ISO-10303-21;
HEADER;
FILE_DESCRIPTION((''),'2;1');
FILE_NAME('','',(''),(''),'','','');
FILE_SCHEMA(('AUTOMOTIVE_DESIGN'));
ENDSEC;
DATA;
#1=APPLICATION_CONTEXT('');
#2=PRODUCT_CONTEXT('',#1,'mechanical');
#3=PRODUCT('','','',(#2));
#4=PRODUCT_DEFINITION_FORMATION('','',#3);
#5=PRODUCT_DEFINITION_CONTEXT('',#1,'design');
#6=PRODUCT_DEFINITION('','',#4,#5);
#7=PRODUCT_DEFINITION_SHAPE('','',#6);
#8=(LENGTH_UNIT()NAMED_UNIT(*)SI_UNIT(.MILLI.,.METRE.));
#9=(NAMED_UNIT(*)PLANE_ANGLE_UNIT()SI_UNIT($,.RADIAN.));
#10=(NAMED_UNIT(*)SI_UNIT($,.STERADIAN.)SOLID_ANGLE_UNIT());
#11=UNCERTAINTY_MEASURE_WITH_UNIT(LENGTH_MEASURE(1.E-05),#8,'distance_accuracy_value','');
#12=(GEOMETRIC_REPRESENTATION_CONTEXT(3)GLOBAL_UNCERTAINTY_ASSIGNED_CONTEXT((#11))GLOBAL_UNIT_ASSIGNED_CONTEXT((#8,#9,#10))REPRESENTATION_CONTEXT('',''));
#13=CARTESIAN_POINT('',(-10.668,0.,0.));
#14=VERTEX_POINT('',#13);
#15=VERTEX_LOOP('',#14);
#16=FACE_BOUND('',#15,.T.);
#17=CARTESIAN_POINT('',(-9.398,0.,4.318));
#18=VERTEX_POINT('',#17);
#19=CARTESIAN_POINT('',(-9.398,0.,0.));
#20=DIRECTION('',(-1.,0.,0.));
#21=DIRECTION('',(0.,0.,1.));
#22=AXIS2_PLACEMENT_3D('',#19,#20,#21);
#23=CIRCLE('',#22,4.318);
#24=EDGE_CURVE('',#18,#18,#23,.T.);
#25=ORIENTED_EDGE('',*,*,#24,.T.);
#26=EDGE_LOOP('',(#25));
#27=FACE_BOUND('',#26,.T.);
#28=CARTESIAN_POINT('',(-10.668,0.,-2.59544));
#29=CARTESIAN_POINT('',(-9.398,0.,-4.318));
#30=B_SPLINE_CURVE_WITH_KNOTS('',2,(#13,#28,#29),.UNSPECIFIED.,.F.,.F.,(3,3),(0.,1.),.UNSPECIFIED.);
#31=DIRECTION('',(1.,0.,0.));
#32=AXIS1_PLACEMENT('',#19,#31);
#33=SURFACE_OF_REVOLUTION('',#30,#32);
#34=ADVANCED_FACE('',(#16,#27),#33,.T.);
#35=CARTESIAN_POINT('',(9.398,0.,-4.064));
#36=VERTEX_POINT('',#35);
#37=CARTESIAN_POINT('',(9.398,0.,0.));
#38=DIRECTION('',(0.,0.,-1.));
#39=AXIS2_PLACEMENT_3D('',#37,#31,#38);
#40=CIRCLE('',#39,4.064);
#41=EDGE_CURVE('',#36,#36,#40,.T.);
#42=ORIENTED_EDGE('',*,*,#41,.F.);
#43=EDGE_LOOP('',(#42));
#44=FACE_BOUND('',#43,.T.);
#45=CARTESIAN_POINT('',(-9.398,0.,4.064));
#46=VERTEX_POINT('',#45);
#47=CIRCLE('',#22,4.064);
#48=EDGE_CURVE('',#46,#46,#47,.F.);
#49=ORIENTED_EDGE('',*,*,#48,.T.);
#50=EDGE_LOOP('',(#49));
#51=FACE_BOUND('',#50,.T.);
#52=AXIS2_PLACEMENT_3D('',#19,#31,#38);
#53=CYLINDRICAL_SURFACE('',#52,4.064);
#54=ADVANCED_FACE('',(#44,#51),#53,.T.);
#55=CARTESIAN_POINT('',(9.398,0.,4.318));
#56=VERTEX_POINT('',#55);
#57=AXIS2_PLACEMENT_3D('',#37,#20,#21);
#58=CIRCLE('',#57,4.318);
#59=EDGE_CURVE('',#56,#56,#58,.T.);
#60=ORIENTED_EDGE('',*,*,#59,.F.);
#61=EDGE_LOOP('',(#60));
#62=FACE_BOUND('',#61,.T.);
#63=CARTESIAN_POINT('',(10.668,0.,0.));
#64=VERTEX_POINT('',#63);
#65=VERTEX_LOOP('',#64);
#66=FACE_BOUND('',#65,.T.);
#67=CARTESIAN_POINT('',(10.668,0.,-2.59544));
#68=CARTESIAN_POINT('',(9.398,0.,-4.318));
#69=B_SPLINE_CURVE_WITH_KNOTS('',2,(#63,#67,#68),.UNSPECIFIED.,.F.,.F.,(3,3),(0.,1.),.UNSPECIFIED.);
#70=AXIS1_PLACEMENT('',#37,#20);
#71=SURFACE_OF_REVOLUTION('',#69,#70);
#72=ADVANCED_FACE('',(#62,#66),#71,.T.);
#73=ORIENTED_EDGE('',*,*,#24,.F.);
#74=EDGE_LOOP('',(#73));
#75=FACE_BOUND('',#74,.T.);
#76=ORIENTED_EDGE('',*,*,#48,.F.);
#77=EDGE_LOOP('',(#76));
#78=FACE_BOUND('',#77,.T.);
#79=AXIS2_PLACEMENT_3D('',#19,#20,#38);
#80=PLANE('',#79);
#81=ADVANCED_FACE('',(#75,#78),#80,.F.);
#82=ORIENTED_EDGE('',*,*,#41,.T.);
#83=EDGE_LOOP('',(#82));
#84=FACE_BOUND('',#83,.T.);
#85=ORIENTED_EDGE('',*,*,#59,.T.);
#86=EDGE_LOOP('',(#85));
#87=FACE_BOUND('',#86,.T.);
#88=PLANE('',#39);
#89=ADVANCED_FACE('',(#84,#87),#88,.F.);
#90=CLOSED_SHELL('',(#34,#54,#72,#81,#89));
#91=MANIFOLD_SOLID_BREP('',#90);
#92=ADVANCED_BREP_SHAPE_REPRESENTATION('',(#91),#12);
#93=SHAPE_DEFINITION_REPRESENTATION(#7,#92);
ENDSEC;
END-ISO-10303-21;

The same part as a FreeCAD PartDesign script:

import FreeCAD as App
import Part
import Sketcher

V = App.Vector
Q = App.Units.Quantity

doc = App.newDocument("Part")
params = doc.addObject("Spreadsheet::Sheet", "Params")
for row, (alias, value) in enumerate([
    ("sketch1_diameter", "0.32 in"),
    ("pad1_length", "0.37 in"),
    ("pad1_length2", "0.37 in"),
    ("revolution_angle", "360 deg"),
], start=1):
    params.set(f"A{row}", alias)
    params.set(f"B{row}", "=" + value)
    params.setAlias(f"B{row}", alias)

body = doc.addObject("PartDesign::Body", "Body")

sketch1 = body.newObject("Sketcher::SketchObject", "Sketch")
sketch1.AttachmentSupport = (doc.getObject("YZ_Plane"), [""])
sketch1.MapMode = "FlatFace"
sketch1.addGeometry(Part.Circle(V(0, 0, 0), V(0, 0, 1), 4.1), False)
sketch1.addConstraint([
    Sketcher.Constraint("Coincident", 0, 3, -1, 1),
    Sketcher.Constraint("Diameter", 0, Q("0.32 in")),
])
sketch1.setExpression("Constraints[1]", "Params.sketch1_diameter")
pad1 = body.newObject("PartDesign::Pad", "Pad")
pad1.Profile = sketch1
pad1.Type = "TwoLengths"
pad1.setExpression("Length", "Params.pad1_length")
pad1.setExpression("Length2", "Params.pad1_length2")

sketch2 = body.newObject("Sketcher::SketchObject", "Sketch001")
sketch2.AttachmentSupport = (doc.getObject("XZ_Plane"), [""])
sketch2.MapMode = "FlatFace"
sketch2.addGeometry([
    Part.LineSegment(V(9.398, -4.318, 0), V(9.398, 0, 0)),
    Part.LineSegment(V(9.398, 0, 0), V(10.668, 0, 0)),
    Part.BSplineCurve([V(9.398, -4.318, 0), V(10.668, -2.59544, 0), V(10.668, 0, 0)], [3, 3], [0, 1], False, 2, [1, 1, 1], False),
], False)
sketch2.addConstraint([
    Sketcher.Constraint("Block", 2),
    Sketcher.Constraint("Coincident", 0, 2, 1, 1),
    Sketcher.Constraint("Coincident", 1, 2, 2, 2),
    Sketcher.Constraint("Coincident", 2, 1, 0, 1),
    Sketcher.Constraint("Vertical", 0),
    Sketcher.Constraint("Horizontal", 1),
])
revolution = body.newObject("PartDesign::Revolution", "Revolution")
revolution.Profile = sketch2
revolution.ReferenceAxis = (sketch2, ["H_Axis"])
revolution.setExpression("Angle", "Params.revolution_angle")
doc.recompute()

mirrored = body.newObject("PartDesign::Mirrored", "Mirrored")
mirrored.Originals = [revolution]
mirrored.MirrorPlane = (doc.getObject("YZ_Plane"), [""])
body.Tip = mirrored

doc.recompute()
